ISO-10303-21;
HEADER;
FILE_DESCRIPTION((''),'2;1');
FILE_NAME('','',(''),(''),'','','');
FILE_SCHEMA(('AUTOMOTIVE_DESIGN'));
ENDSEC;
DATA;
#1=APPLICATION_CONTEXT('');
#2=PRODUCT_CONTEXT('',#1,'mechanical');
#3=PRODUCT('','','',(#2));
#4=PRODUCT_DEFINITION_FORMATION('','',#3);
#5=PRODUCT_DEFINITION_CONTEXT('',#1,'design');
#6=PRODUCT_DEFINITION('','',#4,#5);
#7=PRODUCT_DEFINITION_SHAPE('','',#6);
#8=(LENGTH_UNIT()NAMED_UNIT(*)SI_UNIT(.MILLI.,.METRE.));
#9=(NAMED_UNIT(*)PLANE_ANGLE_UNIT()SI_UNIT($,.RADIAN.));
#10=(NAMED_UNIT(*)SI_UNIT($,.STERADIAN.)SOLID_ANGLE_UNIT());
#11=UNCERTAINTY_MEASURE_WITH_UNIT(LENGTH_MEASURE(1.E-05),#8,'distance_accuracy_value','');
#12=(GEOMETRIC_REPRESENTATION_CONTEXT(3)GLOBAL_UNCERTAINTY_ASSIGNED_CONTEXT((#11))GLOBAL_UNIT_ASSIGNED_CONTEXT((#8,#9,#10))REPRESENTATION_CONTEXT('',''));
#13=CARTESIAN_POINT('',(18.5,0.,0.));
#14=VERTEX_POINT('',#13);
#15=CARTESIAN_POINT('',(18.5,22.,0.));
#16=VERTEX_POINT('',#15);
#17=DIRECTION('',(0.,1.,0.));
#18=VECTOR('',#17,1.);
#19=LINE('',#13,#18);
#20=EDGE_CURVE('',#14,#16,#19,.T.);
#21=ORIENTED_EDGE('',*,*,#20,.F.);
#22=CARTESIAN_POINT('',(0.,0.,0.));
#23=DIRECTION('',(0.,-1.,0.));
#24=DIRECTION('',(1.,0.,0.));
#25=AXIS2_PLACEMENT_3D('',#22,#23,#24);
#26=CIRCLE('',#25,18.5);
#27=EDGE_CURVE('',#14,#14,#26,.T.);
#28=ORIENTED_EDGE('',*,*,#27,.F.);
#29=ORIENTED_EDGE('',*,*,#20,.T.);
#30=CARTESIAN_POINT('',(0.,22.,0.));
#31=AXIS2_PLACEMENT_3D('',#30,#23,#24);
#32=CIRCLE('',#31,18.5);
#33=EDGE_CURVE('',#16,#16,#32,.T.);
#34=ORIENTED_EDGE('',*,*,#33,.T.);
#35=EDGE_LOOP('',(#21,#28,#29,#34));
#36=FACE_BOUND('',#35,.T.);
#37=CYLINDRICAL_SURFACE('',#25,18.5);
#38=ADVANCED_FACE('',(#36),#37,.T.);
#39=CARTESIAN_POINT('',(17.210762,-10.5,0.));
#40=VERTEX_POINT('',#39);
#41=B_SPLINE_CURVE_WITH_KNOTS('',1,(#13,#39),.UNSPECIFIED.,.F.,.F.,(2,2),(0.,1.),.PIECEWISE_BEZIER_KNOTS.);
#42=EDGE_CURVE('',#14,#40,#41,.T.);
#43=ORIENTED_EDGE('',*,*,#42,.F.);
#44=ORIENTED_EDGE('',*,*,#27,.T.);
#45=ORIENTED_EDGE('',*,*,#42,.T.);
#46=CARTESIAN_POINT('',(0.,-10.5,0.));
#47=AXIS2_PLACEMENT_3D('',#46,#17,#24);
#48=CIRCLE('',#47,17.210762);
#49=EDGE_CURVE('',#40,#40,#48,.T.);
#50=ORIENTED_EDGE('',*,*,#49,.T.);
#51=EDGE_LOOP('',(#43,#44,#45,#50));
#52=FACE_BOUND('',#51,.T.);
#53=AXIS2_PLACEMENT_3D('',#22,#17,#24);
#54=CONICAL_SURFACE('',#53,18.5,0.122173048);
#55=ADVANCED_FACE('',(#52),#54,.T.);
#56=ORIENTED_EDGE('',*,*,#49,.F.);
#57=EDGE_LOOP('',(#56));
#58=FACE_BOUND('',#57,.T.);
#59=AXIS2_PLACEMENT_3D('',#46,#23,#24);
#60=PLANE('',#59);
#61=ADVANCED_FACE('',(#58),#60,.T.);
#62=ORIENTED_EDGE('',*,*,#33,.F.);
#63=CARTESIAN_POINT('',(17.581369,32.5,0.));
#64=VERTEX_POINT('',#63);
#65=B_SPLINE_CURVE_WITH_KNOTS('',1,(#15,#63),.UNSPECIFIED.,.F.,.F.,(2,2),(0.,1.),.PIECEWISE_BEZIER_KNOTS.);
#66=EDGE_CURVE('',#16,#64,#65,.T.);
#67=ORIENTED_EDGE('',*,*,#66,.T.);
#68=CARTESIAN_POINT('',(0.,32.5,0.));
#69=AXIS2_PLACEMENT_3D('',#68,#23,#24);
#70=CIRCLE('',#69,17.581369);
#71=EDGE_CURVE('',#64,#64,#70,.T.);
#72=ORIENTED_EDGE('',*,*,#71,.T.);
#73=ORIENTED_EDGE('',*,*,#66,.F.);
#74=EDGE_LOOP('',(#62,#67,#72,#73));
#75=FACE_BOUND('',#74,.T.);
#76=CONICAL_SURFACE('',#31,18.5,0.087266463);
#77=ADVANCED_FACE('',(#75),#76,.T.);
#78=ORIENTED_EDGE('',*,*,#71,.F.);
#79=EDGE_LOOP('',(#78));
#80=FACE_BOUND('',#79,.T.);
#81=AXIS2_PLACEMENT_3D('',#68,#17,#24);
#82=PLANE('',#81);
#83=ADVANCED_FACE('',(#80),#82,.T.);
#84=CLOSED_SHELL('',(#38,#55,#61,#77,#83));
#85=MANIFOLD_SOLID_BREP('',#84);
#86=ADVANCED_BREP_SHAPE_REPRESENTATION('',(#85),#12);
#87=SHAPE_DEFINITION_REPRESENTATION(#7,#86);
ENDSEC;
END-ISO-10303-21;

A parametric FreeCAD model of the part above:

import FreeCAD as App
import Part
import Sketcher

doc = App.newDocument("Part")
body = doc.addObject("PartDesign::Body", "Body")

sketch1 = body.newObject("Sketcher::SketchObject", "Sketch")
sketch1.AttachmentSupport = (doc.getObject("XZ_Plane"), [""])
sketch1.MapMode = "FlatFace"
sketch1.addGeometry(Part.Circle(App.Vector(0, 0, 0), App.Vector(0, 0, 1), 18.5), False)
sketch1.addConstraint([
    Sketcher.Constraint("Coincident", 0, 3, -1, 1),
    Sketcher.Constraint("Diameter", 0, 37.0),
])
pad1 = body.newObject("PartDesign::Pad", "Pad")
pad1.Profile = sketch1
pad1.Length = 22
pad1.Reversed = True

sketch2 = body.newObject("Sketcher::SketchObject", "Sketch001")
sketch2.AttachmentSupport = (doc.getObject("XZ_Plane"), [""])
sketch2.MapMode = "FlatFace"
sketch2.addGeometry(Part.Circle(App.Vector(0, 0, 0), App.Vector(0, 0, 1), 18.5), False)
sketch2.addConstraint([
    Sketcher.Constraint("Coincident", 0, 3, -1, 1),
    Sketcher.Constraint("Diameter", 0, 37.0),
])
pad2 = body.newObject("PartDesign::Pad", "Pad001")
pad2.Profile = sketch2
pad2.Length = 10.5
pad2.TaperAngle = -7

sketch3 = body.newObject("Sketcher::SketchObject", "Sketch002")
sketch3.AttachmentSupport = (doc.getObject("XZ_Plane"), [""])
sketch3.MapMode = "FlatFace"
sketch3.AttachmentOffset = App.Placement(App.Vector(0, 0, -22), App.Rotation())
sketch3.addGeometry(Part.Circle(App.Vector(0, 0, 0), App.Vector(0, 0, 1), 18.5), False)
sketch3.addConstraint([
    Sketcher.Constraint("Coincident", 0, 3, -1, 1),
    Sketcher.Constraint("Diameter", 0, 37.0),
])
pad3 = body.newObject("PartDesign::Pad", "Pad002")
pad3.Profile = sketch3
pad3.Length = 10.5
pad3.Reversed = True
pad3.TaperAngle = -5

doc.recompute()
